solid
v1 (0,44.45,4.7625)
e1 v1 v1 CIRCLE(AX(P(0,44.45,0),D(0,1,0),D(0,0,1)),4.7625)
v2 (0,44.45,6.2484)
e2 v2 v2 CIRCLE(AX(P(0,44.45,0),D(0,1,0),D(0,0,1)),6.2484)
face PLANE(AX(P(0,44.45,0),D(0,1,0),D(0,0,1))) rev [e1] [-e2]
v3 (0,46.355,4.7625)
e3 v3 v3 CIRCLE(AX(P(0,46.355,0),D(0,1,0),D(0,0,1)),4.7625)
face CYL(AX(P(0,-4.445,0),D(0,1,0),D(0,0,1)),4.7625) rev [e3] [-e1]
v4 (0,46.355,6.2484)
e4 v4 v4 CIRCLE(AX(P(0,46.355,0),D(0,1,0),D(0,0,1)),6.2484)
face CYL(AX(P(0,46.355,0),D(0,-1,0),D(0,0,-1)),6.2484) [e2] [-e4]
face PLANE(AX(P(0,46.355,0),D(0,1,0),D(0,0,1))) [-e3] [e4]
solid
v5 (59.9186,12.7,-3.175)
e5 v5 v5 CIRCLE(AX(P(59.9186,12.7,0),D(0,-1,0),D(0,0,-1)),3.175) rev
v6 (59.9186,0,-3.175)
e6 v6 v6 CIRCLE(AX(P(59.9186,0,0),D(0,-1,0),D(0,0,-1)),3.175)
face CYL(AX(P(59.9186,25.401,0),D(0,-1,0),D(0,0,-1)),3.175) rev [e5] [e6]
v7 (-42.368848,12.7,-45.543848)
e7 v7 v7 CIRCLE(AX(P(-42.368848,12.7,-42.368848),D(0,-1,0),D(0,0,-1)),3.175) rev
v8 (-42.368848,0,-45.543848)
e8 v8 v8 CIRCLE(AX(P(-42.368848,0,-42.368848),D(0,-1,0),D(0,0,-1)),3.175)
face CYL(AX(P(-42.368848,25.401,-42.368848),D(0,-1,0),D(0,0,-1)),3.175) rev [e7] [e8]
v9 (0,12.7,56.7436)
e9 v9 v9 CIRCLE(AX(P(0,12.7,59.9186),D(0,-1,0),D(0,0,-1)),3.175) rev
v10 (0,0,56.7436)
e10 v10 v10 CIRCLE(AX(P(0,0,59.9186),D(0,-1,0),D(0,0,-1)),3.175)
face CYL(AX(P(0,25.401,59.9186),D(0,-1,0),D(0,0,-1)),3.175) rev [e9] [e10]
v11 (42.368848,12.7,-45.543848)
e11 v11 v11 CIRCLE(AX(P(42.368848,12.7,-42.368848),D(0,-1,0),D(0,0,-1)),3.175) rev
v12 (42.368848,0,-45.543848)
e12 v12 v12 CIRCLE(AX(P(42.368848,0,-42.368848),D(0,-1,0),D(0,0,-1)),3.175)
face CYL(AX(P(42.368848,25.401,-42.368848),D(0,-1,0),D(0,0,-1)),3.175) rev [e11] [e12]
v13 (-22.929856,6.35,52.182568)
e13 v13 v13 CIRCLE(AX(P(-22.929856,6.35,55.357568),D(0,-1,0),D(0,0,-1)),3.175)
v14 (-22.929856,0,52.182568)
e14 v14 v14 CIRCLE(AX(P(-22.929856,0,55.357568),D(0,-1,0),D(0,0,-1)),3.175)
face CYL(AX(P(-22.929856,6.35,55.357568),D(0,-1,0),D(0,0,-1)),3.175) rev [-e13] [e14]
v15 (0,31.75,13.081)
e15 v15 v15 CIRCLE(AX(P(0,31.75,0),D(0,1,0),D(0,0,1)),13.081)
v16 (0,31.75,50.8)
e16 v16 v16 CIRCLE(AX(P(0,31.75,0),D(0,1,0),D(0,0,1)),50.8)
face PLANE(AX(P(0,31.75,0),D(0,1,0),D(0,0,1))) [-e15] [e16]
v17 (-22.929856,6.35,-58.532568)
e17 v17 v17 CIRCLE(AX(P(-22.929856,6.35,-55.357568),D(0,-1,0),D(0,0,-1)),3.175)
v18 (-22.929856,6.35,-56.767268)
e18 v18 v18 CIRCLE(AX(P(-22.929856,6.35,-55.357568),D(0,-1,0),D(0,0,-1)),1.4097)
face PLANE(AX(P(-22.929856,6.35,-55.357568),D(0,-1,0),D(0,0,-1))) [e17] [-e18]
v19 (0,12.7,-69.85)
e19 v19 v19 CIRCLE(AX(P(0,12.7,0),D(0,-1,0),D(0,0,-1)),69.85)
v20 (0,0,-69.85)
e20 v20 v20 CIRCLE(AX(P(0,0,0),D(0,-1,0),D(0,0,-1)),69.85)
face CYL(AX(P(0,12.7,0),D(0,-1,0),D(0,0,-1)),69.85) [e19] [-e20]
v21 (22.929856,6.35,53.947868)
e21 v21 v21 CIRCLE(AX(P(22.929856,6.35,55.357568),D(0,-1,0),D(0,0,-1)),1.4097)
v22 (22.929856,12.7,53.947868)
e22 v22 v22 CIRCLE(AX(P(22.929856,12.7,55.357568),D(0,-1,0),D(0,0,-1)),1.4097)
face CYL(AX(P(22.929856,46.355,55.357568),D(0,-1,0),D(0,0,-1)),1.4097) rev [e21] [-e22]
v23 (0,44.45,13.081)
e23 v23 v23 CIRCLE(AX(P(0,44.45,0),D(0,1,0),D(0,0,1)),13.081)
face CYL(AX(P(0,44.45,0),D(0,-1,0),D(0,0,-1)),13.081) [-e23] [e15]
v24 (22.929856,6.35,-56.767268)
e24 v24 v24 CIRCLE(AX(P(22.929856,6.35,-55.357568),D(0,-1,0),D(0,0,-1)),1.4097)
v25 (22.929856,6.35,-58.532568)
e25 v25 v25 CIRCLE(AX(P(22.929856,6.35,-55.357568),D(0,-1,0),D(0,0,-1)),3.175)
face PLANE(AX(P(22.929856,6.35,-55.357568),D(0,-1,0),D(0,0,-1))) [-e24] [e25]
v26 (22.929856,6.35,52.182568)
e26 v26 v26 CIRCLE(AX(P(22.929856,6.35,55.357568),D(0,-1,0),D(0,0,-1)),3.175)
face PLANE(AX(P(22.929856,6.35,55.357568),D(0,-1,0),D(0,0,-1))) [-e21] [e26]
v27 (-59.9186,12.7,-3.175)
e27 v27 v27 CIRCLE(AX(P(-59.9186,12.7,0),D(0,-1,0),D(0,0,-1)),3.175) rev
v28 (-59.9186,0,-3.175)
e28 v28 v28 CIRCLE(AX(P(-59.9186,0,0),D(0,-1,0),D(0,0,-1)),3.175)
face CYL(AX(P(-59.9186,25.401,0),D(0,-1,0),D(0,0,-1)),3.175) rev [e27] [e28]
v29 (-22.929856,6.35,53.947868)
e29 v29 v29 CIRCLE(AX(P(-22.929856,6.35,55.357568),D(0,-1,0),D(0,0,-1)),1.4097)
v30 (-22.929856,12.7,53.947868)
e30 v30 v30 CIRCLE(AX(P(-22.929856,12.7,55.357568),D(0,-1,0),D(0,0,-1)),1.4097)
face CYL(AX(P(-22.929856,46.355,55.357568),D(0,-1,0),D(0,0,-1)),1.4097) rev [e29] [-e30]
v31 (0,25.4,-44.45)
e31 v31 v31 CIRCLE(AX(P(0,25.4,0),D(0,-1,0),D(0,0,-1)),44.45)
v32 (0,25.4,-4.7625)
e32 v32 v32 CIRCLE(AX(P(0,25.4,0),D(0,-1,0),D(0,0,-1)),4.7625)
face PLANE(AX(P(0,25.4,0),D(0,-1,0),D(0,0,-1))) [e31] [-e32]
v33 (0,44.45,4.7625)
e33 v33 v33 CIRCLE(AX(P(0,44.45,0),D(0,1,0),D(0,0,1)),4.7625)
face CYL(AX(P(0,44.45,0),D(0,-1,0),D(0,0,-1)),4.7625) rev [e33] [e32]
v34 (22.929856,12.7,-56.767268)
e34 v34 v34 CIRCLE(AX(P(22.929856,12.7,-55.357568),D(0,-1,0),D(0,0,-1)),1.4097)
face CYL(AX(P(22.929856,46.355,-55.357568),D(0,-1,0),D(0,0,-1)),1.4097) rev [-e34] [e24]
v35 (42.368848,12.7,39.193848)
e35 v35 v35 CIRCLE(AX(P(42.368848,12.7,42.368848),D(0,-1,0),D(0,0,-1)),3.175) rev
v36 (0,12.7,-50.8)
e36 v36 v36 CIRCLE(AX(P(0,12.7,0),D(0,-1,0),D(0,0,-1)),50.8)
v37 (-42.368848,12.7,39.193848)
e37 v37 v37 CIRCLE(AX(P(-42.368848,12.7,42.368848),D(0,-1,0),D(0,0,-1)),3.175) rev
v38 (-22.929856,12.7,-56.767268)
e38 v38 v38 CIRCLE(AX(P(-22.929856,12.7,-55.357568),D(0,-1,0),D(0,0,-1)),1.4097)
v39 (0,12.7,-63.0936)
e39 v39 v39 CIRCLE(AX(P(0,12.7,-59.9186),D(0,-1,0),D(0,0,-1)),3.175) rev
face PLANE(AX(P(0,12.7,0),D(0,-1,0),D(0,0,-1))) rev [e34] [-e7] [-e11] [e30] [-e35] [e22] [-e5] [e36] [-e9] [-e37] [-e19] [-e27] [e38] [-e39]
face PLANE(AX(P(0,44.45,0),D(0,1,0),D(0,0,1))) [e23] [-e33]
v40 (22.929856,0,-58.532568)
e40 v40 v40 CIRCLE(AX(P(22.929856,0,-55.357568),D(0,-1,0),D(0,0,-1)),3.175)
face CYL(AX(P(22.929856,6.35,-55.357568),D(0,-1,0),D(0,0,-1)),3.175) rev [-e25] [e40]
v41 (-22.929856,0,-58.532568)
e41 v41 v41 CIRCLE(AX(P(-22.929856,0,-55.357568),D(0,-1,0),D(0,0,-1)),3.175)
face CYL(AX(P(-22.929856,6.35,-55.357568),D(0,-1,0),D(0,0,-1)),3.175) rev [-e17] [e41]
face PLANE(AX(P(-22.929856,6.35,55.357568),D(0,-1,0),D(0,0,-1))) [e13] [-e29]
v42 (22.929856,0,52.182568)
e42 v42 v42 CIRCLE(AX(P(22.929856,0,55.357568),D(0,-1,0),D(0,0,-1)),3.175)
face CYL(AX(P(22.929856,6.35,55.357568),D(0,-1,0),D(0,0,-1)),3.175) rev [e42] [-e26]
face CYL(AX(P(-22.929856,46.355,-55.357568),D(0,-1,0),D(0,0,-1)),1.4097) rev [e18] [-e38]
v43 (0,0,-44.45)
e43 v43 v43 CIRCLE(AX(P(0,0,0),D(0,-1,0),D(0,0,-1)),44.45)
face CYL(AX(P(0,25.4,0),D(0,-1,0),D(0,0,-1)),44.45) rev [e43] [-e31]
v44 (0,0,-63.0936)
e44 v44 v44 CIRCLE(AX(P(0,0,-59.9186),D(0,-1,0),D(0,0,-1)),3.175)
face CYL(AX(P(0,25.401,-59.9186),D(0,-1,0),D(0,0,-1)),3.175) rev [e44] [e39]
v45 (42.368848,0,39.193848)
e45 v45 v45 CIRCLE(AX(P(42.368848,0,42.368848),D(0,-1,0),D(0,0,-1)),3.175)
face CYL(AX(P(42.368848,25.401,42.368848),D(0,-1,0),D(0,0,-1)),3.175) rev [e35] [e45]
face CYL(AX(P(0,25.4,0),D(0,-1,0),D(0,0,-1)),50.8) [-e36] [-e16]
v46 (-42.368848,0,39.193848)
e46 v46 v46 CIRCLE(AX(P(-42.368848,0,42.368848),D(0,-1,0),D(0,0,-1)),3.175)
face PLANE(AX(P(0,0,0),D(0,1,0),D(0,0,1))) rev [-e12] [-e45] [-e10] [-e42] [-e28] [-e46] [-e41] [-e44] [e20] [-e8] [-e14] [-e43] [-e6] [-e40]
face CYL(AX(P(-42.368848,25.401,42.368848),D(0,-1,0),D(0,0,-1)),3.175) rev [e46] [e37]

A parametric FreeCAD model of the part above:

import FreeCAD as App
import Part
import Sketcher

V = App.Vector
Q = App.Units.Quantity

doc = App.newDocument("Part")
body = doc.addObject("PartDesign::Body", "Body")

# Sketch on XZ plane
sketch1 = body.newObject("Sketcher::SketchObject", "Sketch")
sketch1.AttachmentSupport = (doc.getObject("XZ_Plane"), [""])
sketch1.MapMode = "FlatFace"
sketch1.addGeometry(Part.Circle(V(0, 0, 0), V(0, 0, 1), 51), False)
sketch1.addConstraint([
    Sketcher.Constraint("Coincident", 0, 3, -1, 1),
    Sketcher.Constraint("Diameter", 0, Q("4 in")),
])
pad1 = body.newObject("PartDesign::Pad", "Pad")
pad1.Profile = sketch1
pad1.Length = Q("1 in")
pad1.Reversed = True

# Sketch on XZ plane
sketch2 = body.newObject("Sketcher::SketchObject", "Sketch001")
sketch2.AttachmentSupport = (doc.getObject("XZ_Plane"), [""])
sketch2.MapMode = "FlatFace"
sketch2.addGeometry([
    Part.Circle(V(0, 0, 0), V(0, 0, 1), 70),
    Part.Circle(V(0, 0, 0), V(0, 0, 1), 51),
], False)
sketch2.addConstraint([
    Sketcher.Constraint("Coincident", 0, 3, -1, 1),
    Sketcher.Constraint("Coincident", 1, 3, -1, 1),
    Sketcher.Constraint("Diameter", 1, Q("4 in")),
    Sketcher.Constraint("Diameter", 0, Q("5.5 in")),
])
pad2 = body.newObject("PartDesign::Pad", "Pad001")
pad2.Profile = sketch2
pad2.Length = Q("0.5 in")
pad2.Reversed = True

# Sketch on XZ plane
sketch3 = body.newObject("Sketcher::SketchObject", "Sketch002")
sketch3.AttachmentSupport = (doc.getObject("XZ_Plane"), [""])
sketch3.MapMode = "FlatFace"
sketch3.addGeometry(Part.Circle(V(0, -59.9, 0), V(0, 0, 1), 3.2), False)
sketch3.addConstraint([
    Sketcher.Constraint("PointOnObject", 0, 3, -2),
    Sketcher.Constraint("Diameter", 0, Q("0.25 in")),
    Sketcher.Constraint("DistanceY", 0, 3, -1, 1, Q("2.359 in")),
])
pocket1 = body.newObject("PartDesign::Pocket", "Pocket")
pocket1.Profile = sketch3
pocket1.Type = "UpToFirst"

# Sketch on XZ plane
sketch4 = body.newObject("Sketcher::SketchObject", "Sketch003")
sketch4.AttachmentSupport = (doc.getObject("XZ_Plane"), [""])
sketch4.MapMode = "FlatFace"
sketch4.addGeometry(Part.Circle(V(-42.4, -42.4, 0), V(0, 0, 1), 3.2), False)
sketch4.addConstraint([
    Sketcher.Constraint("Diameter", 0, Q("0.25 in")),
    Sketcher.Constraint("DistanceX", 0, 3, -1, 1, 42.368848),
    Sketcher.Constraint("DistanceY", 0, 3, -1, 1, 42.368848),
])
pocket2 = body.newObject("PartDesign::Pocket", "Pocket001")
pocket2.Profile = sketch4
pocket2.Type = "UpToFirst"

# Sketch on XZ plane
sketch5 = body.newObject("Sketcher::SketchObject", "Sketch004")
sketch5.AttachmentSupport = (doc.getObject("XZ_Plane"), [""])
sketch5.MapMode = "FlatFace"
sketch5.addGeometry(Part.Circle(V(-59.9, 0, 0), V(0, 0, 1), 3.2), False)
sketch5.addConstraint([
    Sketcher.Constraint("PointOnObject", 0, 3, -1),
    Sketcher.Constraint("Diameter", 0, Q("0.25 in")),
    Sketcher.Constraint("DistanceX", 0, 3, -1, 1, Q("2.359 in")),
])
pocket3 = body.newObject("PartDesign::Pocket", "Pocket002")
pocket3.Profile = sketch5
pocket3.Type = "UpToFirst"

# Sketch on XZ plane
sketch6 = body.newObject("Sketcher::SketchObject", "Sketch005")
sketch6.AttachmentSupport = (doc.getObject("XZ_Plane"), [""])
sketch6.MapMode = "FlatFace"
sketch6.addGeometry(Part.Circle(V(-42.4, 42.4, 0), V(0, 0, 1), 3.2), False)
sketch6.addConstraint([
    Sketcher.Constraint("Diameter", 0, Q("0.25 in")),
    Sketcher.Constraint("DistanceX", 0, 3, -1, 1, 42.368848),
    Sketcher.Constraint("DistanceY", -1, 1, 0, 3, 42.368848),
])
pocket4 = body.newObject("PartDesign::Pocket", "Pocket003")
pocket4.Profile = sketch6
pocket4.Type = "UpToFirst"

# Sketch on XZ plane
sketch7 = body.newObject("Sketcher::SketchObject", "Sketch006")
sketch7.AttachmentSupport = (doc.getObject("XZ_Plane"), [""])
sketch7.MapMode = "FlatFace"
sketch7.addGeometry(Part.Circle(V(0, 59.9, 0), V(0, 0, 1), 3.2), False)
sketch7.addConstraint([
    Sketcher.Constraint("PointOnObject", 0, 3, -2),
    Sketcher.Constraint("Diameter", 0, Q("0.25 in")),
    Sketcher.Constraint("DistanceY", -1, 1, 0, 3, Q("2.359 in")),
])
pocket5 = body.newObject("PartDesign::Pocket", "Pocket004")
pocket5.Profile = sketch7
pocket5.Type = "UpToFirst"

# Sketch on XZ plane
sketch8 = body.newObject("Sketcher::SketchObject", "Sketch007")
sketch8.AttachmentSupport = (doc.getObject("XZ_Plane"), [""])
sketch8.MapMode = "FlatFace"
sketch8.addGeometry(Part.Circle(V(42.4, 42.4, 0), V(0, 0, 1), 3.2), False)
sketch8.addConstraint([
    Sketcher.Constraint("Diameter", 0, Q("0.25 in")),
    Sketcher.Constraint("DistanceX", -1, 1, 0, 3, 42.368848),
    Sketcher.Constraint("DistanceY", -1, 1, 0, 3, 42.368848),
])
pocket6 = body.newObject("PartDesign::Pocket", "Pocket005")
pocket6.Profile = sketch8
pocket6.Type = "UpToFirst"

# Sketch on XZ plane
sketch9 = body.newObject("Sketcher::SketchObject", "Sketch008")
sketch9.AttachmentSupport = (doc.getObject("XZ_Plane"), [""])
sketch9.MapMode = "FlatFace"
sketch9.addGeometry(Part.Circle(V(59.9, 0, 0), V(0, 0, 1), 3.2), False)
sketch9.addConstraint([
    Sketcher.Constraint("PointOnObject", 0, 3, -1),
    Sketcher.Constraint("Diameter", 0, Q("0.25 in")),
    Sketcher.Constraint("DistanceX", -1, 1, 0, 3, Q("2.359 in")),
])
pocket7 = body.newObject("PartDesign::Pocket", "Pocket006")
pocket7.Profile = sketch9
pocket7.Type = "UpToFirst"

# Sketch on XZ plane
sketch10 = body.newObject("Sketcher::SketchObject", "Sketch009")
sketch10.AttachmentSupport = (doc.getObject("XZ_Plane"), [""])
sketch10.MapMode = "FlatFace"
sketch10.addGeometry(Part.Circle(V(42.4, -42.4, 0), V(0, 0, 1), 3.2), False)
sketch10.addConstraint([
    Sketcher.Constraint("Diameter", 0, Q("0.25 in")),
    Sketcher.Constraint("DistanceX", -1, 1, 0, 3, 42.368848),
    Sketcher.Constraint("DistanceY", 0, 3, -1, 1, 42.368848),
])
pocket8 = body.newObject("PartDesign::Pocket", "Pocket007")
pocket8.Profile = sketch10
pocket8.Type = "UpToFirst"

# Sketch on XZ plane
sketch11 = body.newObject("Sketcher::SketchObject", "Sketch010")
sketch11.AttachmentSupport = (doc.getObject("XZ_Plane"), [""])
sketch11.MapMode = "FlatFace"
sketch11.AttachmentOffset = App.Placement(V(0, 0, -1 * 25.4), App.Rotation())
sketch11.addGeometry(Part.Circle(V(0, 0, 0), V(0, 0, 1), 13), False)
sketch11.addConstraint([
    Sketcher.Constraint("Coincident", 0, 3, -1, 1),
    Sketcher.Constraint("Diameter", 0, Q("1.01 in")),
])
pocket9 = body.newObject("PartDesign::Pocket", "Pocket008")
pocket9.Profile = sketch11
pocket9.Length = Q("0.75 in")
pocket9.Reversed = True

# Sketch on XZ plane
sketch12 = body.newObject("Sketcher::SketchObject", "Sketch011")
sketch12.AttachmentSupport = (doc.getObject("XZ_Plane"), [""])
sketch12.MapMode = "FlatFace"
sketch12.AttachmentOffset = App.Placement(V(0, 0, -0.25 * 25.4), App.Rotation())
sketch12.addGeometry(Part.Circle(V(0, 0, 0), V(0, 0, 1), 1.6), False)
sketch12.addConstraint([
    Sketcher.Constraint("Coincident", 0, 3, -1, 1),
    Sketcher.Constraint("Diameter", 0, Q("0.125 in")),
])
pocket10 = body.newObject("PartDesign::Pocket", "Pocket009")
pocket10.Profile = sketch12
pocket10.Type = "UpToFirst"
pocket10.Reversed = True

# Sketch on XZ plane
sketch13 = body.newObject("Sketcher::SketchObject", "Sketch012")
sketch13.AttachmentSupport = (doc.getObject("XZ_Plane"), [""])
sketch13.MapMode = "FlatFace"
sketch13.AttachmentOffset = App.Placement(V(0, 0, -1 * 25.4), App.Rotation())
sketch13.addGeometry([
    Part.Circle(V(0, 0, 0), V(0, 0, 1), 13.1),
    Part.Circle(V(0, 0, 0), V(0, 0, 1), 4.8),
], False)
sketch13.addConstraint([
    Sketcher.Constraint("Coincident", 0, 3, -1, 1),
    Sketcher.Constraint("Coincident", 1, 3, -1, 1),
    Sketcher.Constraint("Diameter", 0, Q("1.03 in")),
    Sketcher.Constraint("Diameter", 1, Q("0.375 in")),
])
pad3 = body.newObject("PartDesign::Pad", "Pad002")
pad3.Profile = sketch13
pad3.Length = Q("0.75 in")
pad3.Reversed = True

# Sketch on XZ plane
sketch14 = body.newObject("Sketcher::SketchObject", "Sketch013")
sketch14.AttachmentSupport = (doc.getObject("XZ_Plane"), [""])
sketch14.MapMode = "FlatFace"
sketch14.AttachmentOffset = App.Placement(V(0, 0, -1 * 25.4), App.Rotation())
sketch14.addGeometry(Part.Circle(V(0, 0, 0), V(0, 0, 1), 51), False)
sketch14.addConstraint([
    Sketcher.Constraint("Coincident", 0, 3, -1, 1),
    Sketcher.Constraint("Diameter", 0, Q("4 in")),
])
pad4 = body.newObject("PartDesign::Pad", "Pad003")
pad4.Profile = sketch14
pad4.Length = Q("0.25 in")
pad4.Reversed = True

# Sketch on XZ plane
sketch15 = body.newObject("Sketcher::SketchObject", "Sketch014")
sketch15.AttachmentSupport = (doc.getObject("XZ_Plane"), [""])
sketch15.MapMode = "FlatFace"
sketch15.AttachmentOffset = App.Placement(V(0, 0, -1.25 * 25.4), App.Rotation())
sketch15.addGeometry(Part.Circle(V(0, 0, 0), V(0, 0, 1), 4.8), False)
sketch15.addConstraint([
    Sketcher.Constraint("Coincident", 0, 3, -1, 1),
    Sketcher.Constraint("Diameter", 0, Q("0.375 in")),
])
pocket11 = body.newObject("PartDesign::Pocket", "Pocket010")
pocket11.Profile = sketch15
pocket11.Length = Q("0.25 in")
pocket11.Reversed = True

# Sketch on XZ plane
sketch16 = body.newObject("Sketcher::SketchObject", "Sketch015")
sketch16.AttachmentSupport = (doc.getObject("XZ_Plane"), [""])
sketch16.MapMode = "FlatFace"
sketch16.addGeometry([
    Part.Circle(V(-22.9, 55.4, 0), V(0, 0, 1), 3.2),
    Part.Circle(V(22.9, 55.4, 0), V(0, 0, 1), 3.2),
    Part.Circle(V(-22.9, -55.4, 0), V(0, 0, 1), 3.2),
    Part.Circle(V(22.9, -55.4, 0), V(0, 0, 1), 3.2),
], False)
sketch16.addConstraint([
    Sketcher.Constraint("Equal", 0, 1),
    Sketcher.Constraint("Equal", 1, 2),
    Sketcher.Constraint("Equal", 2, 3),
    Sketcher.Constraint("Symmetric", 1, 3, 2, 3, -1, 1),
    Sketcher.Constraint("Symmetric", 0, 3, 3, 3, -1, 1),
    Sketcher.Constraint("Symmetric", 0, 3, 1, 3, -2),
    Sketcher.Constraint("Diameter", 0, Q("0.25 in")),
    Sketcher.Constraint("DistanceY", -1, 1, 0, 3, 55.357568),
    Sketcher.Constraint("DistanceX", 0, 3, 1, 3, 45.859711),
])
pocket12 = body.newObject("PartDesign::Pocket", "Pocket011")
pocket12.Profile = sketch16
pocket12.Length = Q("0.25 in")

# Sketch on XZ plane
sketch17 = body.newObject("Sketcher::SketchObject", "Sketch016")
sketch17.AttachmentSupport = (doc.getObject("XZ_Plane"), [""])
sketch17.MapMode = "FlatFace"
sketch17.addGeometry(Part.Circle(V(0, 0, 0), V(0, 0, 1), 24), False)
sketch17.addConstraint([
    Sketcher.Constraint("Coincident", 0, 3, -1, 1),
    Sketcher.Constraint("Diameter", 0, Q("1.876 in")),
])
pocket13 = body.newObject("PartDesign::Pocket", "Pocket012")
pocket13.Profile = sketch17
pocket13.Length = Q("0.155 in")

# Sketch on XZ plane
sketch18 = body.newObject("Sketcher::SketchObject", "Sketch017")
sketch18.AttachmentSupport = (doc.getObject("XZ_Plane"), [""])
sketch18.MapMode = "FlatFace"
sketch18.AttachmentOffset = App.Placement(V(0, 0, -0.25 * 25.4), App.Rotation())
sketch18.addGeometry([
    Part.Circle(V(-22.9, 55.4, 0), V(0, 0, 1), 1.4),
    Part.Circle(V(22.9, 55.4, 0), V(0, 0, 1), 1.4),
    Part.Circle(V(-22.9, -55.4, 0), V(0, 0, 1), 1.4),
    Part.Circle(V(22.9, -55.4, 0), V(0, 0, 1), 1.4),
], False)
sketch18.addConstraint([
    Sketcher.Constraint("Equal", 0, 1),
    Sketcher.Constraint("Equal", 1, 2),
    Sketcher.Constraint("Equal", 2, 3),
    Sketcher.Constraint("Symmetric", 1, 3, 2, 3, -1, 1),
    Sketcher.Constraint("Symmetric", 0, 3, 3, 3, -1, 1),
    Sketcher.Constraint("Symmetric", 0, 3, 1, 3, -2),
    Sketcher.Constraint("Diameter", 0, Q("0.111 in")),
    Sketcher.Constraint("DistanceY", -1, 1, 0, 3, 55.357568),
    Sketcher.Constraint("DistanceX", 0, 3, 1, 3, 45.859711),
])
pocket14 = body.newObject("PartDesign::Pocket", "Pocket013")
pocket14.Profile = sketch18
pocket14.Type = "ThroughAll"

# Sketch on XZ plane
sketch19 = body.newObject("Sketcher::SketchObject", "Sketch018")
sketch19.AttachmentSupport = (doc.getObject("XZ_Plane"), [""])
sketch19.MapMode = "FlatFace"
sketch19.addGeometry(Part.Circle(V(0, 0, 0), V(0, 0, 1), 44), False)
sketch19.addConstraint([
    Sketcher.Constraint("Coincident", 0, 3, -1, 1),
    Sketcher.Constraint("Diameter", 0, Q("3.5 in")),
])
pocket15 = body.newObject("PartDesign::Pocket", "Pocket014")
pocket15.Profile = sketch19
pocket15.Length = Q("1 in")

# Sketch on XZ plane
sketch20 = body.newObject("Sketcher::SketchObject", "Sketch019")
sketch20.AttachmentSupport = (doc.getObject("XZ_Plane"), [""])
sketch20.MapMode = "FlatFace"
sketch20.addGeometry([
    Part.Circle(V(0, 0, 0), V(0, 0, 1), 44.5),
    Part.Circle(V(0, 0, 0), V(0, 0, 1), 4.8),
], False)
sketch20.addConstraint([
    Sketcher.Constraint("Coincident", 0, 3, -1, 1),
    Sketcher.Constraint("Coincident", 1, 3, -1, 1),
    Sketcher.Constraint("Diameter", 0, Q("3.5 in")),
    Sketcher.Constraint("Diameter", 1, Q("0.375 in")),
])
pad5 = body.newObject("PartDesign::Pad", "Pad004")
pad5.Profile = sketch20
pad5.Length = Q("1 in")
pad5.Reversed = True

# Sketch on XZ plane
sketch21 = body.newObject("Sketcher::SketchObject", "Sketch020")
sketch21.AttachmentSupport = (doc.getObject("XZ_Plane"), [""])
sketch21.MapMode = "FlatFace"
sketch21.addGeometry(Part.Circle(V(0, 0, 0), V(0, 0, 1), 44), False)
sketch21.addConstraint([
    Sketcher.Constraint("Coincident", 0, 3, -1, 1),
    Sketcher.Constraint("Diameter", 0, Q("3.5 in")),
])
pocket16 = body.newObject("PartDesign::Pocket", "Pocket015")
pocket16.Profile = sketch21
pocket16.Length = Q("1 in")
body2 = doc.addObject("PartDesign::Body", "Body001")

# Sketch on XZ plane
sketch22 = body2.newObject("Sketcher::SketchObject", "Sketch021")
sketch22.AttachmentSupport = (doc.getObject("XZ_Plane001"), [""])
sketch22.MapMode = "FlatFace"
sketch22.AttachmentOffset = App.Placement(V(0, 0, -1.75 * 25.4), App.Rotation())
sketch22.addGeometry(Part.Circle(V(0, 0, 0), V(0, 0, 1), 6), False)
sketch22.addConstraint([
    Sketcher.Constraint("Coincident", 0, 3, -1, 1),
    Sketcher.Constraint("Diameter", 0, Q("0.492 in")),
])
pad6 = body2.newObject("PartDesign::Pad", "Pad005")
pad6.Profile = sketch22
pad6.Length = Q("0.075 in")
pad6.Reversed = True

# Sketch on XZ plane
sketch23 = body2.newObject("Sketcher::SketchObject", "Sketch022")
sketch23.AttachmentSupport = (doc.getObject("XZ_Plane001"), [""])
sketch23.MapMode = "FlatFace"
sketch23.AttachmentOffset = App.Placement(V(0, 0, -1.825 * 25.4), App.Rotation())
sketch23.addGeometry(Part.Circle(V(0, 0, 0), V(0, 0, 1), 4.8), False)
sketch23.addConstraint([
    Sketcher.Constraint("Coincident", 0, 3, -1, 1),
    Sketcher.Constraint("Diameter", 0, Q("0.375 in")),
])
pocket17 = body2.newObject("PartDesign::Pocket", "Pocket016")
pocket17.Profile = sketch23
pocket17.Length = Q("2 in")
pocket17.Reversed = True

doc.recompute()
